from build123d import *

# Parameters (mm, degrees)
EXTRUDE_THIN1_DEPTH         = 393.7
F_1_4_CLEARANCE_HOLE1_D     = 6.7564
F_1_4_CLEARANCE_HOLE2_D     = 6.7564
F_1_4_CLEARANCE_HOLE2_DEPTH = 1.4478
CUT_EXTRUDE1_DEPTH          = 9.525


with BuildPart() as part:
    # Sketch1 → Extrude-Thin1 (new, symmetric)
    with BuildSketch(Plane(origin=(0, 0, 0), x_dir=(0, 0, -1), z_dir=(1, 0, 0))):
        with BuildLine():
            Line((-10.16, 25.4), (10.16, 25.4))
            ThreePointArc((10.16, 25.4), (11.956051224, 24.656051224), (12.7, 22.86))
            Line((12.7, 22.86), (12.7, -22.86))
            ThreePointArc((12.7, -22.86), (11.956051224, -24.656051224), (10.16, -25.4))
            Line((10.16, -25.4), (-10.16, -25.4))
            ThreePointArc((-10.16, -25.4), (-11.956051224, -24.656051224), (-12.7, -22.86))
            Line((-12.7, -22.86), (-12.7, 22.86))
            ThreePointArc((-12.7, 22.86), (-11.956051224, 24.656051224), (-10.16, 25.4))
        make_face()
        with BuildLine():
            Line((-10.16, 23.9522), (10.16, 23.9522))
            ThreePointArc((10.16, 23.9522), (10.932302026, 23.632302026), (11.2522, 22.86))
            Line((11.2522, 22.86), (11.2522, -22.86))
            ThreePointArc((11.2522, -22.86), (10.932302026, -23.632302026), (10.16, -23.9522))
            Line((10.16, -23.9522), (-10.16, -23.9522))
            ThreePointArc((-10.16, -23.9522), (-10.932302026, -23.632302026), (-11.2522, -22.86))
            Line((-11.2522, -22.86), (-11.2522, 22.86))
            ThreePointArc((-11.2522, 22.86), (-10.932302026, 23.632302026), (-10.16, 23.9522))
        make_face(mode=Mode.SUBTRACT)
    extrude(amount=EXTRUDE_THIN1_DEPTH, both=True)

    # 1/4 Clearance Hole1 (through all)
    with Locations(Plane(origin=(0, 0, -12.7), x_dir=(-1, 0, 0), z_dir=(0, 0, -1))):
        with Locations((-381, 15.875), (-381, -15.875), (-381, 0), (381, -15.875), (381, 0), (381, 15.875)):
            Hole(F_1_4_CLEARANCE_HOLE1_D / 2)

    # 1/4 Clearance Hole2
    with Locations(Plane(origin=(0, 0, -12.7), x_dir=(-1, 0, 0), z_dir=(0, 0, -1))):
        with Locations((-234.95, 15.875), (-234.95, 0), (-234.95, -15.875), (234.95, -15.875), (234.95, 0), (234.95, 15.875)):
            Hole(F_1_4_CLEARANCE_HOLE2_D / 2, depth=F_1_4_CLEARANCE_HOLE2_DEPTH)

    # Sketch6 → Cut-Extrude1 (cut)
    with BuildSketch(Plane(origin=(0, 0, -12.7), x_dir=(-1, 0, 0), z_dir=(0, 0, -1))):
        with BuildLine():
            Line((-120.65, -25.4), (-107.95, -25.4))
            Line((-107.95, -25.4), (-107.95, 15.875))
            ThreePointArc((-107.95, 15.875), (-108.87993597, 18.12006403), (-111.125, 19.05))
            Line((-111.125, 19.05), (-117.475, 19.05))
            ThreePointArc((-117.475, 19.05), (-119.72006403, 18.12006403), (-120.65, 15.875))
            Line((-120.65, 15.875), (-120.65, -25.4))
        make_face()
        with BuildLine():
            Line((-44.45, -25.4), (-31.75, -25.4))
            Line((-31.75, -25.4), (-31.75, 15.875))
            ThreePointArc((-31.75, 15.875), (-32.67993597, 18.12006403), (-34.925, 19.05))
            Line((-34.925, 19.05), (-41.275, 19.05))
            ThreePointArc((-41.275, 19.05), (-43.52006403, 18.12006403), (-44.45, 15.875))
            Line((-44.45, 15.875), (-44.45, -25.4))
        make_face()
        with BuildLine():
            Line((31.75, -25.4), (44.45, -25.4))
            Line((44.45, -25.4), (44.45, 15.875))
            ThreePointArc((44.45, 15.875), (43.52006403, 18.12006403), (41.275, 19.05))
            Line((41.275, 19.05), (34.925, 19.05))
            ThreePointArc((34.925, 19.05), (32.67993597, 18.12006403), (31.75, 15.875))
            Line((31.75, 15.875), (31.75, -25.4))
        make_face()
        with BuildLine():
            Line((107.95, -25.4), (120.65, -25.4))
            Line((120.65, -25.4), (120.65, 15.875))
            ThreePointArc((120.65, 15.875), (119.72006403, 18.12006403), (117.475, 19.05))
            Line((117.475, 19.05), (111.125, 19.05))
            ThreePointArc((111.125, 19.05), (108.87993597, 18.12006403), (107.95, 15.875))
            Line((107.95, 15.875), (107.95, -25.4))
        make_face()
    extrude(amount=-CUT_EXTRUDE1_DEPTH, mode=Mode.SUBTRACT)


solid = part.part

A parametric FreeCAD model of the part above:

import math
import FreeCAD as App
import Part
import Sketcher
Q = App.Units.Quantity

doc = App.newDocument("Part")
params = doc.addObject("Spreadsheet::Sheet", "Params")
for row, (alias, value) in enumerate([
    ("sketch1_radius", "0.1 in"),
    ("sketch1_width", "1.8 in"),
    ("sketch1_height", "0.8 in"),
    ("sketch1_radius2", "0.043 in"),
    ("pad1_length", "31 in"),
    ("sketch2_diameter", "0.266 in"),
    ("hole_diameter", "0.266 in"),
    ("sketch3_diameter", "0.266 in"),
    ("hole2_diameter", "0.266 in"),
    ("hole2_depth", "0.057 in"),
    ("sketch4_width", "0.5 in"),
    ("sketch4_radius", "0.125 in"),
    ("sketch4_height", "1.625 in"),
    ("pocket1_length", "0.375 in"),
], start=1):
    params.set(f"A{row}", alias)
    params.set(f"B{row}", "=" + value)
    params.setAlias(f"B{row}", alias)

body = doc.addObject("PartDesign::Body", "Body")

# Sketch on YZ plane
sketch1 = doc.addObject("Sketcher::SketchObject", "Sketch")
body.addObject(sketch1)
sketch1.AttachmentSupport = (doc.YZ_Plane, [""])
sketch1.MapMode = "FlatFace"
sketch1.addGeometry(Part.LineSegment(App.Vector(25.4, -10.2, 0), App.Vector(25.4, 10.2, 0)), False)
sketch1.addGeometry(Part.ArcOfCircle(Part.Circle(App.Vector(22.9, 10.2, 0), App.Vector(0, 0, 1), 2.5), math.radians(0), math.radians(90)), False)
sketch1.addGeometry(Part.LineSegment(App.Vector(22.9, 12.7, 0), App.Vector(-22.9, 12.7, 0)), False)
sketch1.addGeometry(Part.ArcOfCircle(Part.Circle(App.Vector(-22.9, 10.2, 0), App.Vector(0, 0, 1), 2.5), math.radians(90), math.radians(180)), False)
sketch1.addGeometry(Part.LineSegment(App.Vector(-25.4, 10.2, 0), App.Vector(-25.4, -10.2, 0)), False)
sketch1.addGeometry(Part.ArcOfCircle(Part.Circle(App.Vector(-22.9, -10.2, 0), App.Vector(0, 0, 1), 2.5), math.radians(-180), math.radians(-90)), False)
sketch1.addGeometry(Part.LineSegment(App.Vector(-22.9, -12.7, 0), App.Vector(22.9, -12.7, 0)), False)
sketch1.addGeometry(Part.ArcOfCircle(Part.Circle(App.Vector(22.9, -10.2, 0), App.Vector(0, 0, 1), 2.5), math.radians(-90), math.radians(0)), False)
sketch1.addGeometry(Part.LineSegment(App.Vector(24, 10.2, 0), App.Vector(24, -10.2, 0)), False)
sketch1.addGeometry(Part.ArcOfCircle(Part.Circle(App.Vector(22.9, -10.2, 0), App.Vector(0, 0, 1), 1.1), math.radians(-90), math.radians(0)), False)
sketch1.addGeometry(Part.LineSegment(App.Vector(22.9, -11.3, 0), App.Vector(-22.9, -11.3, 0)), False)
sketch1.addGeometry(Part.ArcOfCircle(Part.Circle(App.Vector(-22.9, -10.2, 0), App.Vector(0, 0, 1), 1.1), math.radians(-180), math.radians(-90)), False)
sketch1.addGeometry(Part.LineSegment(App.Vector(-24, -10.2, 0), App.Vector(-24, 10.2, 0)), False)
sketch1.addGeometry(Part.ArcOfCircle(Part.Circle(App.Vector(-22.9, 10.2, 0), App.Vector(0, 0, 1), 1.1), math.radians(90), math.radians(180)), False)
sketch1.addGeometry(Part.LineSegment(App.Vector(-22.9, 11.3, 0), App.Vector(22.9, 11.3, 0)), False)
sketch1.addGeometry(Part.ArcOfCircle(Part.Circle(App.Vector(22.9, 10.2, 0), App.Vector(0, 0, 1), 1.1), math.radians(0), math.radians(90)), False)
sketch1.addConstraint(Sketcher.Constraint("Tangent", 0, 2, 1, 1))
sketch1.addConstraint(Sketcher.Constraint("Tangent", 1, 2, 2, 1))
sketch1.addConstraint(Sketcher.Constraint("Tangent", 2, 2, 3, 1))
sketch1.addConstraint(Sketcher.Constraint("Tangent", 3, 2, 4, 1))
sketch1.addConstraint(Sketcher.Constraint("Tangent", 4, 2, 5, 1))
sketch1.addConstraint(Sketcher.Constraint("Tangent", 5, 2, 6, 1))
sketch1.addConstraint(Sketcher.Constraint("Tangent", 6, 2, 7, 1))
sketch1.addConstraint(Sketcher.Constraint("Tangent", 7, 2, 0, 1))
sketch1.addConstraint(Sketcher.Constraint("Tangent", 8, 2, 9, 2))
sketch1.addConstraint(Sketcher.Constraint("Tangent", 9, 1, 10, 1))
sketch1.addConstraint(Sketcher.Constraint("Tangent", 10, 2, 11, 2))
sketch1.addConstraint(Sketcher.Constraint("Tangent", 11, 1, 12, 1))
sketch1.addConstraint(Sketcher.Constraint("Tangent", 12, 2, 13, 2))
sketch1.addConstraint(Sketcher.Constraint("Tangent", 13, 1, 14, 1))
sketch1.addConstraint(Sketcher.Constraint("Tangent", 14, 2, 15, 2))
sketch1.addConstraint(Sketcher.Constraint("Tangent", 15, 1, 8, 1))
sketch1.addConstraint(Sketcher.Constraint("Vertical", 0))
sketch1.addConstraint(Sketcher.Constraint("Horizontal", 2))
sketch1.addConstraint(Sketcher.Constraint("Vertical", 4))
sketch1.addConstraint(Sketcher.Constraint("Horizontal", 6))
sketch1.addConstraint(Sketcher.Constraint("Vertical", 8))
sketch1.addConstraint(Sketcher.Constraint("Horizontal", 10))
sketch1.addConstraint(Sketcher.Constraint("Vertical", 12))
sketch1.addConstraint(Sketcher.Constraint("Horizontal", 14))
sketch1.addConstraint(Sketcher.Constraint("Coincident", 9, 3, 7, 3))
sketch1.addConstraint(Sketcher.Constraint("Coincident", 11, 3, 5, 3))
sketch1.addConstraint(Sketcher.Constraint("Coincident", 13, 3, 3, 3))
sketch1.addConstraint(Sketcher.Constraint("Equal", 1, 3))
sketch1.addConstraint(Sketcher.Constraint("Equal", 3, 5))
sketch1.addConstraint(Sketcher.Constraint("Equal", 5, 7))
sketch1.addConstraint(Sketcher.Constraint("Equal", 13, 15))
sketch1.addConstraint(Sketcher.Constraint("Symmetric", 1, 3, 5, 3, -1, 1))
sketch1.addConstraint(Sketcher.Constraint("Radius", 1, Q("0.1 in")))
sketch1.addConstraint(Sketcher.Constraint("DistanceX", 2, 2, 2, 1, Q("1.8 in")))
sketch1.addConstraint(Sketcher.Constraint("DistanceY", 0, 1, 0, 2, Q("0.8 in")))
sketch1.addConstraint(Sketcher.Constraint("Radius", 9, Q("0.043 in")))
sketch1.setExpression("Constraints[32]", "Params.sketch1_radius")
sketch1.setExpression("Constraints[33]", "Params.sketch1_width")
sketch1.setExpression("Constraints[34]", "Params.sketch1_height")
sketch1.setExpression("Constraints[35]", "Params.sketch1_radius2")
pad1 = doc.addObject("PartDesign::Pad", "Pad")
body.addObject(pad1)
pad1.Profile = sketch1
pad1.setExpression("Length", "Params.pad1_length")
pad1.Midplane = True

# Sketch on XY plane
sketch2 = doc.addObject("Sketcher::SketchObject", "Sketch001")
body.addObject(sketch2)
sketch2.AttachmentSupport = (doc.XY_Plane, [""])
sketch2.MapMode = "FlatFace"
sketch2.AttachmentOffset = App.Placement(App.Vector(0, 0, -0.5 * 25.4), App.Rotation())
sketch2.addGeometry(Part.Circle(App.Vector(381, 15.9, 0), App.Vector(0, 0, 1), 3.4), False)
sketch2.addGeometry(Part.Circle(App.Vector(381, -15.9, 0), App.Vector(0, 0, 1), 3.4), False)
sketch2.addGeometry(Part.Circle(App.Vector(381, 0, 0), App.Vector(0, 0, 1), 3.4), False)
sketch2.addGeometry(Part.Circle(App.Vector(-381, -15.9, 0), App.Vector(0, 0, 1), 3.4), False)
sketch2.addGeometry(Part.Circle(App.Vector(-381, 0, 0), App.Vector(0, 0, 1), 3.4), False)
sketch2.addGeometry(Part.Circle(App.Vector(-381, 15.9, 0), App.Vector(0, 0, 1), 3.4), False)
sketch2.addConstraint(Sketcher.Constraint("Equal", 0, 1))
sketch2.addConstraint(Sketcher.Constraint("Equal", 1, 2))
sketch2.addConstraint(Sketcher.Constraint("Equal", 2, 3))
sketch2.addConstraint(Sketcher.Constraint("Equal", 3, 4))
sketch2.addConstraint(Sketcher.Constraint("Equal", 4, 5))
sketch2.addConstraint(Sketcher.Constraint("Symmetric", 0, 3, 3, 3, -1, 1))
sketch2.addConstraint(Sketcher.Constraint("Symmetric", 2, 3, 4, 3, -1, 1))
sketch2.addConstraint(Sketcher.Constraint("Symmetric", 1, 3, 5, 3, -1, 1))
sketch2.addConstraint(Sketcher.Constraint("Symmetric", 1, 3, 3, 3, -2))
sketch2.addConstraint(Sketcher.Constraint("PointOnObject", 2, 3, -1))
sketch2.addConstraint(Sketcher.Constraint("Vertical", 1, 3, 2, 3))
sketch2.addConstraint(Sketcher.Constraint("Diameter", 0, Q("0.266 in")))
sketch2.addConstraint(Sketcher.Constraint("DistanceX", -1, 1, 0, 3, Q("15 in")))
sketch2.addConstraint(Sketcher.Constraint("DistanceY", 1, 3, 0, 3, Q("1.25 in")))
sketch2.setExpression("Constraints[11]", "Params.sketch2_diameter")
doc.recompute()
hole = doc.addObject("PartDesign::Hole", "Hole")
body.addObject(hole)
hole.Profile = sketch2
hole.ThreadType = "None"
hole.setExpression("Diameter", "Params.hole_diameter")
hole.DepthType = "ThroughAll"
hole.Reversed = True

# Sketch on XY plane
sketch3 = doc.addObject("Sketcher::SketchObject", "Sketch002")
body.addObject(sketch3)
sketch3.AttachmentSupport = (doc.XY_Plane, [""])
sketch3.MapMode = "FlatFace"
sketch3.AttachmentOffset = App.Placement(App.Vector(0, 0, -0.5 * 25.4), App.Rotation())
sketch3.addGeometry(Part.Circle(App.Vector(234.9, 15.9, 0), App.Vector(0, 0, 1), 3.4), False)
sketch3.addGeometry(Part.Circle(App.Vector(234.9, 0, 0), App.Vector(0, 0, 1), 3.4), False)
sketch3.addGeometry(Part.Circle(App.Vector(234.9, -15.9, 0), App.Vector(0, 0, 1), 3.4), False)
sketch3.addGeometry(Part.Circle(App.Vector(-234.9, -15.9, 0), App.Vector(0, 0, 1), 3.4), False)
sketch3.addGeometry(Part.Circle(App.Vector(-234.9, 0, 0), App.Vector(0, 0, 1), 3.4), False)
sketch3.addGeometry(Part.Circle(App.Vector(-234.9, 15.9, 0), App.Vector(0, 0, 1), 3.4), False)
sketch3.addConstraint(Sketcher.Constraint("Equal", 0, 1))
sketch3.addConstraint(Sketcher.Constraint("Equal", 1, 2))
sketch3.addConstraint(Sketcher.Constraint("Equal", 2, 3))
sketch3.addConstraint(Sketcher.Constraint("Equal", 3, 4))
sketch3.addConstraint(Sketcher.Constraint("Equal", 4, 5))
sketch3.addConstraint(Sketcher.Constraint("Symmetric", 0, 3, 3, 3, -1, 1))
sketch3.addConstraint(Sketcher.Constraint("Symmetric", 1, 3, 4, 3, -1, 1))
sketch3.addConstraint(Sketcher.Constraint("Symmetric", 2, 3, 5, 3, -1, 1))
sketch3.addConstraint(Sketcher.Constraint("Symmetric", 2, 3, 3, 3, -2))
sketch3.addConstraint(Sketcher.Constraint("PointOnObject", 1, 3, -1))
sketch3.addConstraint(Sketcher.Constraint("Vertical", 0, 3, 1, 3))
sketch3.addConstraint(Sketcher.Constraint("Diameter", 0, Q("0.266 in")))
sketch3.addConstraint(Sketcher.Constraint("DistanceX", 3, 3, 2, 3, Q("18.5 in")))
sketch3.addConstraint(Sketcher.Constraint("DistanceY", 2, 3, 0, 3, Q("1.25 in")))
sketch3.setExpression("Constraints[11]", "Params.sketch3_diameter")
doc.recompute()
hole2 = doc.addObject("PartDesign::Hole", "Hole001")
body.addObject(hole2)
hole2.Profile = sketch3
hole2.ThreadType = "None"
hole2.setExpression("Diameter", "Params.hole2_diameter")
hole2.DepthType = "Dimension"
hole2.setExpression("Depth", "Params.hole2_depth")
hole2.DrillPoint = "Flat"
hole2.Reversed = True

# Sketch on XY plane
sketch4 = doc.addObject("Sketcher::SketchObject", "Sketch003")
body.addObject(sketch4)
sketch4.AttachmentSupport = (doc.XY_Plane, [""])
sketch4.MapMode = "FlatFace"
sketch4.AttachmentOffset = App.Placement(App.Vector(0, 0, -0.5 * 25.4), App.Rotation())
sketch4.addGeometry(Part.LineSegment(App.Vector(120.7, -25.4, 0), App.Vector(108, -25.4, 0)), False)
sketch4.addGeometry(Part.LineSegment(App.Vector(108, -25.4, 0), App.Vector(108, 15.9, 0)), False)
sketch4.addGeometry(Part.ArcOfCircle(Part.Circle(App.Vector(111.1, 15.9, 0), App.Vector(0, 0, 1), 3.2), math.radians(90), math.radians(180)), False)
sketch4.addGeometry(Part.LineSegment(App.Vector(111.1, 19.1, 0), App.Vector(117.5, 19.1, 0)), False)
sketch4.addGeometry(Part.ArcOfCircle(Part.Circle(App.Vector(117.5, 15.9, 0), App.Vector(0, 0, 1), 3.2), math.radians(0), math.radians(90)), False)
sketch4.addGeometry(Part.LineSegment(App.Vector(120.7, 15.9, 0), App.Vector(120.7, -25.4, 0)), False)
sketch4.addGeometry(Part.LineSegment(App.Vector(44.5, -25.4, 0), App.Vector(31.8, -25.4, 0)), False)
sketch4.addGeometry(Part.LineSegment(App.Vector(31.8, -25.4, 0), App.Vector(31.8, 15.9, 0)), False)
sketch4.addGeometry(Part.ArcOfCircle(Part.Circle(App.Vector(34.9, 15.9, 0), App.Vector(0, 0, 1), 3.2), math.radians(90), math.radians(180)), False)
sketch4.addGeometry(Part.LineSegment(App.Vector(34.9, 19.1, 0), App.Vector(41.3, 19.1, 0)), False)
sketch4.addGeometry(Part.ArcOfCircle(Part.Circle(App.Vector(41.3, 15.9, 0), App.Vector(0, 0, 1), 3.2), math.radians(0), math.radians(90)), False)
sketch4.addGeometry(Part.LineSegment(App.Vector(44.5, 15.9, 0), App.Vector(44.5, -25.4, 0)), False)
sketch4.addGeometry(Part.LineSegment(App.Vector(-31.8, -25.4, 0), App.Vector(-44.5, -25.4, 0)), False)
sketch4.addGeometry(Part.LineSegment(App.Vector(-44.5, -25.4, 0), App.Vector(-44.5, 15.9, 0)), False)
sketch4.addGeometry(Part.ArcOfCircle(Part.Circle(App.Vector(-41.3, 15.9, 0), App.Vector(0, 0, 1), 3.2), math.radians(90), math.radians(180)), False)
sketch4.addGeometry(Part.LineSegment(App.Vector(-41.3, 19.1, 0), App.Vector(-34.9, 19.1, 0)), False)
sketch4.addGeometry(Part.ArcOfCircle(Part.Circle(App.Vector(-34.9, 15.9, 0), App.Vector(0, 0, 1), 3.2), math.radians(0), math.radians(90)), False)
sketch4.addGeometry(Part.LineSegment(App.Vector(-31.8, 15.9, 0), App.Vector(-31.8, -25.4, 0)), False)
sketch4.addGeometry(Part.LineSegment(App.Vector(-108, -25.4, 0), App.Vector(-120.7, -25.4, 0)), False)
sketch4.addGeometry(Part.LineSegment(App.Vector(-120.7, -25.4, 0), App.Vector(-120.7, 15.9, 0)), False)
sketch4.addGeometry(Part.ArcOfCircle(Part.Circle(App.Vector(-117.5, 15.9, 0), App.Vector(0, 0, 1), 3.2), math.radians(90), math.radians(180)), False)
sketch4.addGeometry(Part.LineSegment(App.Vector(-117.5, 19.1, 0), App.Vector(-111.1, 19.1, 0)), False)
sketch4.addGeometry(Part.ArcOfCircle(Part.Circle(App.Vector(-111.1, 15.9, 0), App.Vector(0, 0, 1), 3.2), math.radians(0), math.radians(90)), False)
sketch4.addGeometry(Part.LineSegment(App.Vector(-108, 15.9, 0), App.Vector(-108, -25.4, 0)), False)
sketch4.addConstraint(Sketcher.Constraint("Coincident", 0, 2, 1, 1))
sketch4.addConstraint(Sketcher.Constraint("Tangent", 1, 2, 2, 2))
sketch4.addConstraint(Sketcher.Constraint("Tangent", 2, 1, 3, 1))
sketch4.addConstraint(Sketcher.Constraint("Tangent", 3, 2, 4, 2))
sketch4.addConstraint(Sketcher.Constraint("Tangent", 4, 1, 5, 1))
sketch4.addConstraint(Sketcher.Constraint("Coincident", 5, 2, 0, 1))
sketch4.addConstraint(Sketcher.Constraint("Coincident", 6, 2, 7, 1))
sketch4.addConstraint(Sketcher.Constraint("Tangent", 7, 2, 8, 2))
sketch4.addConstraint(Sketcher.Constraint("Tangent", 8, 1, 9, 1))
sketch4.addConstraint(Sketcher.Constraint("Tangent", 9, 2, 10, 2))
sketch4.addConstraint(Sketcher.Constraint("Tangent", 10, 1, 11, 1))
sketch4.addConstraint(Sketcher.Constraint("Coincident", 11, 2, 6, 1))
sketch4.addConstraint(Sketcher.Constraint("Coincident", 12, 2, 13, 1))
sketch4.addConstraint(Sketcher.Constraint("Tangent", 13, 2, 14, 2))
sketch4.addConstraint(Sketcher.Constraint("Tangent", 14, 1, 15, 1))
sketch4.addConstraint(Sketcher.Constraint("Tangent", 15, 2, 16, 2))
sketch4.addConstraint(Sketcher.Constraint("Tangent", 16, 1, 17, 1))
sketch4.addConstraint(Sketcher.Constraint("Coincident", 17, 2, 12, 1))
sketch4.addConstraint(Sketcher.Constraint("Coincident", 18, 2, 19, 1))
sketch4.addConstraint(Sketcher.Constraint("Tangent", 19, 2, 20, 2))
sketch4.addConstraint(Sketcher.Constraint("Tangent", 20, 1, 21, 1))
sketch4.addConstraint(Sketcher.Constraint("Tangent", 21, 2, 22, 2))
sketch4.addConstraint(Sketcher.Constraint("Tangent", 22, 1, 23, 1))
sketch4.addConstraint(Sketcher.Constraint("Coincident", 23, 2, 18, 1))
sketch4.addConstraint(Sketcher.Constraint("Horizontal", 0))
sketch4.addConstraint(Sketcher.Constraint("Vertical", 1))
sketch4.addConstraint(Sketcher.Constraint("Horizontal", 3))
sketch4.addConstraint(Sketcher.Constraint("Vertical", 5))
sketch4.addConstraint(Sketcher.Constraint("Horizontal", 6))
sketch4.addConstraint(Sketcher.Constraint("Vertical", 7))
sketch4.addConstraint(Sketcher.Constraint("Horizontal", 9))
sketch4.addConstraint(Sketcher.Constraint("Vertical", 11))
sketch4.addConstraint(Sketcher.Constraint("Horizontal", 12))
sketch4.addConstraint(Sketcher.Constraint("Vertical", 13))
sketch4.addConstraint(Sketcher.Constraint("Horizontal", 15))
sketch4.addConstraint(Sketcher.Constraint("Vertical", 17))
sketch4.addConstraint(Sketcher.Constraint("Horizontal", 18))
sketch4.addConstraint(Sketcher.Constraint("Vertical", 19))
sketch4.addConstraint(Sketcher.Constraint("Horizontal", 21))
sketch4.addConstraint(Sketcher.Constraint("Vertical", 23))
sketch4.addConstraint(Sketcher.Constraint("Equal", 2, 4))
sketch4.addConstraint(Sketcher.Constraint("Equal", 4, 8))
sketch4.addConstraint(Sketcher.Constraint("Equal", 8, 10))
sketch4.addConstraint(Sketcher.Constraint("Equal", 10, 14))
sketch4.addConstraint(Sketcher.Constraint("Equal", 14, 16))
sketch4.addConstraint(Sketcher.Constraint("Equal", 16, 20))
sketch4.addConstraint(Sketcher.Constraint("Equal", 20, 22))
sketch4.addConstraint(Sketcher.Constraint("Symmetric", 10, 3, 14, 3, -2))
sketch4.addConstraint(Sketcher.Constraint("Symmetric", 4, 3, 20, 3, -2))
sketch4.addConstraint(Sketcher.Constraint("Symmetric", 6, 2, 17, 2, -2))
sketch4.addConstraint(Sketcher.Constraint("Symmetric", 0, 2, 23, 2, -2))
sketch4.addConstraint(Sketcher.Constraint("Horizontal", 4, 3, 8, 3))
sketch4.addConstraint(Sketcher.Constraint("Horizontal", 5, 2, 6, 2))
sketch4.addConstraint(Sketcher.Constraint("Equal", 0, 6))
sketch4.addConstraint(Sketcher.Constraint("DistanceX", 0, 2, 0, 1, Q("0.5 in")))
sketch4.addConstraint(Sketcher.Constraint("DistanceY", 0, 2, -1, 1, Q("1 in")))
sketch4.addConstraint(Sketcher.Constraint("Radius", 2, Q("0.125 in")))
sketch4.addConstraint(Sketcher.Constraint("DistanceX", 8, 3, 2, 3, Q("3 in")))
sketch4.addConstraint(Sketcher.Constraint("DistanceX", 14, 3, 8, 3, Q("3 in")))
sketch4.addConstraint(Sketcher.Constraint("DistanceY", 1, 1, 1, 2, Q("1.625 in")))
sketch4.setExpression("Constraints[54]", "Params.sketch4_width")
sketch4.setExpression("Constraints[56]", "Params.sketch4_radius")
sketch4.setExpression("Constraints[59]", "Params.sketch4_height")
pocket1 = doc.addObject("PartDesign::Pocket", "Pocket")
body.addObject(pocket1)
pocket1.Profile = sketch4
pocket1.setExpression("Length", "Params.pocket1_length")
pocket1.Reversed = True

doc.recompute()
